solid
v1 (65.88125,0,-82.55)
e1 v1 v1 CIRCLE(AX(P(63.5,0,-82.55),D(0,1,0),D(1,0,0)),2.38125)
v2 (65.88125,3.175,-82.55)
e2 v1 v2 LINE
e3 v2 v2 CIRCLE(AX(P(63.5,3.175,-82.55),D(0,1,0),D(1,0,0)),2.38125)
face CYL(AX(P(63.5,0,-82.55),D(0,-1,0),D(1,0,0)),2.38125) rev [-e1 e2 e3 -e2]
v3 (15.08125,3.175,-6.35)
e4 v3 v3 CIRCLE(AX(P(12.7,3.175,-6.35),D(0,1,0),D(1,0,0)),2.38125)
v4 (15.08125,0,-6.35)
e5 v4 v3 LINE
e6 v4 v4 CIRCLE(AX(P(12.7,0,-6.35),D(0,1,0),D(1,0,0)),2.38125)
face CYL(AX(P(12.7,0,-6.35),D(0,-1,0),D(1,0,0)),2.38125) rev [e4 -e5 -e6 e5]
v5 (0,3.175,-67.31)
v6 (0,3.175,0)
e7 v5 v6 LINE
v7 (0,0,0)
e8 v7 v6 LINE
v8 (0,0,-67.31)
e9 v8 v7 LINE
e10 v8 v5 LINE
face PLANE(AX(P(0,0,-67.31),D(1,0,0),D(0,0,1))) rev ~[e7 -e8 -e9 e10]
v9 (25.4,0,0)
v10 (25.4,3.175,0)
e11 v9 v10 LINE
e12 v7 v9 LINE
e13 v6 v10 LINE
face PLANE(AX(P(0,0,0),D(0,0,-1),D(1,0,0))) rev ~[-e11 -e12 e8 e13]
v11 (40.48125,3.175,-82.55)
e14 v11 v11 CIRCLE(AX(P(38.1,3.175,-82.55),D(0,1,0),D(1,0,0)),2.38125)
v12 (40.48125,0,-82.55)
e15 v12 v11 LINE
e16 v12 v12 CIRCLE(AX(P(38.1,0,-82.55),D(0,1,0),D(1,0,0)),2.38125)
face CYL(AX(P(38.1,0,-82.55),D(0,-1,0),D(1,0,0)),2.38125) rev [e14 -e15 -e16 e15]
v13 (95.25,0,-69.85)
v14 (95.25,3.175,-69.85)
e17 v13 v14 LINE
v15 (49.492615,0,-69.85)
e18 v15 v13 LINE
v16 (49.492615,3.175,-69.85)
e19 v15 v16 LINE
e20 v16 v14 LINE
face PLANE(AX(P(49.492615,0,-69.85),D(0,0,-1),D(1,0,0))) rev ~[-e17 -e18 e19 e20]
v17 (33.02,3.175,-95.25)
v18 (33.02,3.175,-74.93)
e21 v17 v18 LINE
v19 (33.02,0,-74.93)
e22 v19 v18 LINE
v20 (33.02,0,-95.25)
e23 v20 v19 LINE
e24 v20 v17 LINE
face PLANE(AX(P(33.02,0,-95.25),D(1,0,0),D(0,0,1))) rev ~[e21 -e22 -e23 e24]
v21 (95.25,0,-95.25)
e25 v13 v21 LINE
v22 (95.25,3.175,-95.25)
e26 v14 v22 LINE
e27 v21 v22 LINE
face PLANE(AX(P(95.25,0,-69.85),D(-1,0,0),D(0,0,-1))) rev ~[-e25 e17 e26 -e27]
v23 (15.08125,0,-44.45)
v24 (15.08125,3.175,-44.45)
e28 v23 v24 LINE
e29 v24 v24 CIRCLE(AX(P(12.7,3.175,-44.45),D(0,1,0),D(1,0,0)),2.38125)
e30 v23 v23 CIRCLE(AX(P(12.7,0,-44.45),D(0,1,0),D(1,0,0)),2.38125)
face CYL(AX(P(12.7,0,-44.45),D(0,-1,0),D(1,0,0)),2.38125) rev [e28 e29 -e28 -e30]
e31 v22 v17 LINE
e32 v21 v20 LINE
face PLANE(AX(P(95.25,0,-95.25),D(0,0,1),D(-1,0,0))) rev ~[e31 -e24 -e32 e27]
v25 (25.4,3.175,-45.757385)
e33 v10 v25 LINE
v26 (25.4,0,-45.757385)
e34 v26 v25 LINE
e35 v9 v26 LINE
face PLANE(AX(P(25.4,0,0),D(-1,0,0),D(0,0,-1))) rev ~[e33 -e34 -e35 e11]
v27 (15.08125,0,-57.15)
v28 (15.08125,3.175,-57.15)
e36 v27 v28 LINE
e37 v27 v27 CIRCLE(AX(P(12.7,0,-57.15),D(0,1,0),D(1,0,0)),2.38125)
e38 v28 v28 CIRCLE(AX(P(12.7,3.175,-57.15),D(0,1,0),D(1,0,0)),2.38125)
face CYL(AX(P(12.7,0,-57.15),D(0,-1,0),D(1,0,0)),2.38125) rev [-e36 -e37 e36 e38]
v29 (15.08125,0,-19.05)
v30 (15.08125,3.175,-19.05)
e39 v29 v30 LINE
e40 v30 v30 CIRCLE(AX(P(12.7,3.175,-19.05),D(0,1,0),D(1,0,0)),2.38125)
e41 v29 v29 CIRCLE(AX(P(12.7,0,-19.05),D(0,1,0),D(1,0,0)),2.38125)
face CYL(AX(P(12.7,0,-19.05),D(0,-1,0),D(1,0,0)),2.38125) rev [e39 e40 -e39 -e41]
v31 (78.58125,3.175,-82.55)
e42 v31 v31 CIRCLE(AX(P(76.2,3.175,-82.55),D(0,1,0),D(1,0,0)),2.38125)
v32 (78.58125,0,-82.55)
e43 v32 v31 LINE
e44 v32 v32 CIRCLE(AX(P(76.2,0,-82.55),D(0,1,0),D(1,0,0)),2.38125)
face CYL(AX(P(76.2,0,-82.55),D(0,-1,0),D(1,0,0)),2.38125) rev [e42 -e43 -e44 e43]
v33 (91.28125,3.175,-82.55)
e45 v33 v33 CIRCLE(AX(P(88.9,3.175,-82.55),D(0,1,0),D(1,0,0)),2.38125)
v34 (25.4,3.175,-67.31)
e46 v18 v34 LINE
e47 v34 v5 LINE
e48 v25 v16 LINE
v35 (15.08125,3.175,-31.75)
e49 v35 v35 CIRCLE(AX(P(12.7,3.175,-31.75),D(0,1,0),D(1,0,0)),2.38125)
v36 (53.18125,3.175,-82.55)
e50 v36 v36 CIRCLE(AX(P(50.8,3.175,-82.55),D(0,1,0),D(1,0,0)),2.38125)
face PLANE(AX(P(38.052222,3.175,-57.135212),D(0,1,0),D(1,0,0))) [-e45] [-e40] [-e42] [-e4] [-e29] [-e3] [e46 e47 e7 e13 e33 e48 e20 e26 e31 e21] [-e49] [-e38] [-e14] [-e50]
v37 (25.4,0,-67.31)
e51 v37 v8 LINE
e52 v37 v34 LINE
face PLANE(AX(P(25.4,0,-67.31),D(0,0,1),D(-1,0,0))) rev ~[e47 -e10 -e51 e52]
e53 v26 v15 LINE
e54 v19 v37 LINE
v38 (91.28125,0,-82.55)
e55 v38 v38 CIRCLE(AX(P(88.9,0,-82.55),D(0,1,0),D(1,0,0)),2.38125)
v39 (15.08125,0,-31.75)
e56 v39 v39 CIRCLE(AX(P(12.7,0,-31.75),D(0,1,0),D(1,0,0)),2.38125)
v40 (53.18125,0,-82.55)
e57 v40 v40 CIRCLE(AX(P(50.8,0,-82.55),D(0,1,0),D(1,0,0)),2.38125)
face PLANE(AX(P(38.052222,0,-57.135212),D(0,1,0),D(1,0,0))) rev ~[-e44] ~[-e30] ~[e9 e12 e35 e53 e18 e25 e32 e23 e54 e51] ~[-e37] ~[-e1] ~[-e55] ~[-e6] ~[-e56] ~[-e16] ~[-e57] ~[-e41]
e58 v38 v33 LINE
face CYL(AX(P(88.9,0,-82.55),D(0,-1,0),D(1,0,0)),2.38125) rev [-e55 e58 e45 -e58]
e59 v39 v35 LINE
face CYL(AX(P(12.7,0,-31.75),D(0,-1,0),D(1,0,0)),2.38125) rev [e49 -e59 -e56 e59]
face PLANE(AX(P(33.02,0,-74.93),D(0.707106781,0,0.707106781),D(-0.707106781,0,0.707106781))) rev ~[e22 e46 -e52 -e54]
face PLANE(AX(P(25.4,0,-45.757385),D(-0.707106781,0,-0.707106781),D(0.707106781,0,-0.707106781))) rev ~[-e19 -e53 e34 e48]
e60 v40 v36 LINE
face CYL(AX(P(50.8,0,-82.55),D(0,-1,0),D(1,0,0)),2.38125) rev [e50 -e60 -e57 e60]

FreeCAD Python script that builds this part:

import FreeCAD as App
import Part
import Sketcher

V = App.Vector
Q = App.Units.Quantity


def add_polygon(sketch, points):
    """Adds a closed chain of lines whose ends are joined by coincident constraints."""
    first, n = sketch.GeometryCount, len(points)
    for a, b in zip(points, points[1:] + points[:1]):
        sketch.addGeometry(Part.LineSegment(App.Vector(*a, 0), App.Vector(*b, 0)), False)
    for i in range(n):
        sketch.addConstraint(Sketcher.Constraint("Coincident", first + i, 2, first + (i + 1) % n, 1))

doc = App.newDocument("Part")
params = doc.addObject("Spreadsheet::Sheet", "Params")
for row, (alias, value) in enumerate([
    ("sketch1_width", "1 in"),
    ("sketch1_diameter", "0.1875 in"),
    ("sketch1_height", "0.8 in"),
    ("sketch1_width2", "2.45 in"),
    ("pad1_length", "0.125 in"),
], start=1):
    params.set(f"A{row}", alias)
    params.set(f"B{row}", "=" + value)
    params.setAlias(f"B{row}", alias)

body = doc.addObject("PartDesign::Body", "Body")

sketch1 = body.newObject("Sketcher::SketchObject", "Sketch")
sketch1.AttachmentSupport = (doc.getObject("XZ_Plane"), [""])
sketch1.MapMode = "FlatFace"
add_polygon(sketch1, [(0, -67.31), (0, 0), (25.4, 0), (25.4, -45.757385), (49.492615, -69.85), (95.25, -69.85), (95.25, -95.25), (33.02, -95.25), (33.02, -74.93), (25.4, -67.31)])
sketch1.addGeometry(Part.Circle(V(12.7, -6.35, 0), V(0, 0, 1), 2.38125), False)
sketch1.addGeometry(Part.Circle(V(12.7, -19.05, 0), V(0, 0, 1), 2.38125), False)
sketch1.addGeometry(Part.Circle(V(12.7, -31.75, 0), V(0, 0, 1), 2.38125), False)
sketch1.addGeometry(Part.Circle(V(12.7, -44.45, 0), V(0, 0, 1), 2.38125), False)
sketch1.addGeometry(Part.Circle(V(12.7, -57.15, 0), V(0, 0, 1), 2.38125), False)
sketch1.addGeometry(Part.Circle(V(38.1, -82.55, 0), V(0, 0, 1), 2.38125), False)
sketch1.addGeometry(Part.Circle(V(50.8, -82.55, 0), V(0, 0, 1), 2.38125), False)
sketch1.addGeometry(Part.Circle(V(63.5, -82.55, 0), V(0, 0, 1), 2.38125), False)
sketch1.addGeometry(Part.Circle(V(76.2, -82.55, 0), V(0, 0, 1), 2.38125), False)
sketch1.addGeometry(Part.Circle(V(88.9, -82.55, 0), V(0, 0, 1), 2.38125), False)
sketch1.addConstraint(Sketcher.Constraint("Vertical", 0))
sketch1.addConstraint(Sketcher.Constraint("Horizontal", 1))
sketch1.addConstraint(Sketcher.Constraint("Vertical", 2))
sketch1.addConstraint(Sketcher.Constraint("Horizontal", 4))
sketch1.addConstraint(Sketcher.Constraint("Vertical", 5))
sketch1.addConstraint(Sketcher.Constraint("Horizontal", 6))
sketch1.addConstraint(Sketcher.Constraint("Vertical", 7))
sketch1.addConstraint(Sketcher.Constraint("Horizontal", 9))
sketch1.addConstraint(Sketcher.Constraint("Coincident", 0, 2, -1, 1))
sketch1.addConstraint(Sketcher.Constraint("Equal", 10, 11))
sketch1.addConstraint(Sketcher.Constraint("Equal", 11, 12))
sketch1.addConstraint(Sketcher.Constraint("Equal", 12, 13))
sketch1.addConstraint(Sketcher.Constraint("Equal", 13, 14))
sketch1.addConstraint(Sketcher.Constraint("Equal", 14, 15))
sketch1.addConstraint(Sketcher.Constraint("Equal", 15, 16))
sketch1.addConstraint(Sketcher.Constraint("Equal", 16, 17))
sketch1.addConstraint(Sketcher.Constraint("Equal", 17, 18))
sketch1.addConstraint(Sketcher.Constraint("Equal", 18, 19))
sketch1.addConstraint(Sketcher.Constraint("Parallel", 3, 8))
sketch1.addConstraint(Sketcher.Constraint("Horizontal", 15, 3, 16, 3))
sketch1.addConstraint(Sketcher.Constraint("Horizontal", 16, 3, 17, 3))
sketch1.addConstraint(Sketcher.Constraint("Horizontal", 17, 3, 18, 3))
sketch1.addConstraint(Sketcher.Constraint("Horizontal", 18, 3, 19, 3))
sketch1.addConstraint(Sketcher.Constraint("Vertical", 10, 3, 11, 3))
sketch1.addConstraint(Sketcher.Constraint("Vertical", 11, 3, 12, 3))
sketch1.addConstraint(Sketcher.Constraint("Vertical", 12, 3, 13, 3))
sketch1.addConstraint(Sketcher.Constraint("Vertical", 13, 3, 14, 3))
sketch1.addConstraint(Sketcher.Constraint("Vertical", 2, 2, 8, 2))
sketch1.addConstraint(Sketcher.Constraint("Equal", 4, 2))
sketch1.addConstraint(Sketcher.Constraint("Equal", 9, 5))
sketch1.addConstraint(Sketcher.Constraint("DistanceX", 1, 1, 1, 2, Q("1 in")))
sketch1.addConstraint(Sketcher.Constraint("Diameter", 10, Q("0.1875 in")))
sketch1.addConstraint(Sketcher.Constraint("DistanceY", 7, 1, 7, 2, Q("0.8 in")))
sketch1.addConstraint(Sketcher.Constraint("DistanceX", -1, 1, 16, 3, Q("2 in")))
sketch1.addConstraint(Sketcher.Constraint("DistanceX", -1, 1, 18, 3, Q("3 in")))
sketch1.addConstraint(Sketcher.Constraint("Angle", 3, Q("-45 deg")))
sketch1.addConstraint(Sketcher.Constraint("DistanceY", 12, 3, 10, 3, Q("1 in")))
sketch1.addConstraint(Sketcher.Constraint("DistanceY", 13, 3, 11, 3, Q("1 in")))
sketch1.addConstraint(Sketcher.Constraint("DistanceY", 14, 3, 12, 3, Q("1 in")))
sketch1.addConstraint(Sketcher.Constraint("DistanceX", 14, 3, 15, 3, Q("1 in")))
sketch1.addConstraint(Sketcher.Constraint("DistanceY", 15, 3, 14, 3, Q("1 in")))
sketch1.addConstraint(Sketcher.Constraint("DistanceX", 15, 3, 17, 3, Q("1 in")))
sketch1.addConstraint(Sketcher.Constraint("DistanceX", 17, 3, 19, 3, Q("1 in")))
sketch1.addConstraint(Sketcher.Constraint("DistanceX", 6, 2, 6, 1, Q("2.45 in")))
sketch1.addConstraint(Sketcher.Constraint("DistanceX", -1, 1, 10, 3, Q("0.5 in")))
sketch1.addConstraint(Sketcher.Constraint("DistanceX", -1, 1, 6, 2, Q("1.3 in")))
sketch1.addConstraint(Sketcher.Constraint("DistanceY", 11, 3, 10, 3, Q("0.5 in")))
sketch1.addConstraint(Sketcher.Constraint("DistanceY", 16, 3, 3, 2, Q("0.5 in")))
sketch1.addConstraint(Sketcher.Constraint("DistanceX", 4, 1, 4, 2, Q("45.757385 mm")))
sketch1.setExpression("Constraints[40]", "Params.sketch1_width")
sketch1.setExpression("Constraints[41]", "Params.sketch1_diameter")
sketch1.setExpression("Constraints[42]", "Params.sketch1_height")
sketch1.setExpression("Constraints[53]", "Params.sketch1_width2")
pad1 = body.newObject("PartDesign::Pad", "Pad")
pad1.Profile = sketch1
pad1.setExpression("Length", "Params.pad1_length")
pad1.Reversed = True

doc.recompute()
